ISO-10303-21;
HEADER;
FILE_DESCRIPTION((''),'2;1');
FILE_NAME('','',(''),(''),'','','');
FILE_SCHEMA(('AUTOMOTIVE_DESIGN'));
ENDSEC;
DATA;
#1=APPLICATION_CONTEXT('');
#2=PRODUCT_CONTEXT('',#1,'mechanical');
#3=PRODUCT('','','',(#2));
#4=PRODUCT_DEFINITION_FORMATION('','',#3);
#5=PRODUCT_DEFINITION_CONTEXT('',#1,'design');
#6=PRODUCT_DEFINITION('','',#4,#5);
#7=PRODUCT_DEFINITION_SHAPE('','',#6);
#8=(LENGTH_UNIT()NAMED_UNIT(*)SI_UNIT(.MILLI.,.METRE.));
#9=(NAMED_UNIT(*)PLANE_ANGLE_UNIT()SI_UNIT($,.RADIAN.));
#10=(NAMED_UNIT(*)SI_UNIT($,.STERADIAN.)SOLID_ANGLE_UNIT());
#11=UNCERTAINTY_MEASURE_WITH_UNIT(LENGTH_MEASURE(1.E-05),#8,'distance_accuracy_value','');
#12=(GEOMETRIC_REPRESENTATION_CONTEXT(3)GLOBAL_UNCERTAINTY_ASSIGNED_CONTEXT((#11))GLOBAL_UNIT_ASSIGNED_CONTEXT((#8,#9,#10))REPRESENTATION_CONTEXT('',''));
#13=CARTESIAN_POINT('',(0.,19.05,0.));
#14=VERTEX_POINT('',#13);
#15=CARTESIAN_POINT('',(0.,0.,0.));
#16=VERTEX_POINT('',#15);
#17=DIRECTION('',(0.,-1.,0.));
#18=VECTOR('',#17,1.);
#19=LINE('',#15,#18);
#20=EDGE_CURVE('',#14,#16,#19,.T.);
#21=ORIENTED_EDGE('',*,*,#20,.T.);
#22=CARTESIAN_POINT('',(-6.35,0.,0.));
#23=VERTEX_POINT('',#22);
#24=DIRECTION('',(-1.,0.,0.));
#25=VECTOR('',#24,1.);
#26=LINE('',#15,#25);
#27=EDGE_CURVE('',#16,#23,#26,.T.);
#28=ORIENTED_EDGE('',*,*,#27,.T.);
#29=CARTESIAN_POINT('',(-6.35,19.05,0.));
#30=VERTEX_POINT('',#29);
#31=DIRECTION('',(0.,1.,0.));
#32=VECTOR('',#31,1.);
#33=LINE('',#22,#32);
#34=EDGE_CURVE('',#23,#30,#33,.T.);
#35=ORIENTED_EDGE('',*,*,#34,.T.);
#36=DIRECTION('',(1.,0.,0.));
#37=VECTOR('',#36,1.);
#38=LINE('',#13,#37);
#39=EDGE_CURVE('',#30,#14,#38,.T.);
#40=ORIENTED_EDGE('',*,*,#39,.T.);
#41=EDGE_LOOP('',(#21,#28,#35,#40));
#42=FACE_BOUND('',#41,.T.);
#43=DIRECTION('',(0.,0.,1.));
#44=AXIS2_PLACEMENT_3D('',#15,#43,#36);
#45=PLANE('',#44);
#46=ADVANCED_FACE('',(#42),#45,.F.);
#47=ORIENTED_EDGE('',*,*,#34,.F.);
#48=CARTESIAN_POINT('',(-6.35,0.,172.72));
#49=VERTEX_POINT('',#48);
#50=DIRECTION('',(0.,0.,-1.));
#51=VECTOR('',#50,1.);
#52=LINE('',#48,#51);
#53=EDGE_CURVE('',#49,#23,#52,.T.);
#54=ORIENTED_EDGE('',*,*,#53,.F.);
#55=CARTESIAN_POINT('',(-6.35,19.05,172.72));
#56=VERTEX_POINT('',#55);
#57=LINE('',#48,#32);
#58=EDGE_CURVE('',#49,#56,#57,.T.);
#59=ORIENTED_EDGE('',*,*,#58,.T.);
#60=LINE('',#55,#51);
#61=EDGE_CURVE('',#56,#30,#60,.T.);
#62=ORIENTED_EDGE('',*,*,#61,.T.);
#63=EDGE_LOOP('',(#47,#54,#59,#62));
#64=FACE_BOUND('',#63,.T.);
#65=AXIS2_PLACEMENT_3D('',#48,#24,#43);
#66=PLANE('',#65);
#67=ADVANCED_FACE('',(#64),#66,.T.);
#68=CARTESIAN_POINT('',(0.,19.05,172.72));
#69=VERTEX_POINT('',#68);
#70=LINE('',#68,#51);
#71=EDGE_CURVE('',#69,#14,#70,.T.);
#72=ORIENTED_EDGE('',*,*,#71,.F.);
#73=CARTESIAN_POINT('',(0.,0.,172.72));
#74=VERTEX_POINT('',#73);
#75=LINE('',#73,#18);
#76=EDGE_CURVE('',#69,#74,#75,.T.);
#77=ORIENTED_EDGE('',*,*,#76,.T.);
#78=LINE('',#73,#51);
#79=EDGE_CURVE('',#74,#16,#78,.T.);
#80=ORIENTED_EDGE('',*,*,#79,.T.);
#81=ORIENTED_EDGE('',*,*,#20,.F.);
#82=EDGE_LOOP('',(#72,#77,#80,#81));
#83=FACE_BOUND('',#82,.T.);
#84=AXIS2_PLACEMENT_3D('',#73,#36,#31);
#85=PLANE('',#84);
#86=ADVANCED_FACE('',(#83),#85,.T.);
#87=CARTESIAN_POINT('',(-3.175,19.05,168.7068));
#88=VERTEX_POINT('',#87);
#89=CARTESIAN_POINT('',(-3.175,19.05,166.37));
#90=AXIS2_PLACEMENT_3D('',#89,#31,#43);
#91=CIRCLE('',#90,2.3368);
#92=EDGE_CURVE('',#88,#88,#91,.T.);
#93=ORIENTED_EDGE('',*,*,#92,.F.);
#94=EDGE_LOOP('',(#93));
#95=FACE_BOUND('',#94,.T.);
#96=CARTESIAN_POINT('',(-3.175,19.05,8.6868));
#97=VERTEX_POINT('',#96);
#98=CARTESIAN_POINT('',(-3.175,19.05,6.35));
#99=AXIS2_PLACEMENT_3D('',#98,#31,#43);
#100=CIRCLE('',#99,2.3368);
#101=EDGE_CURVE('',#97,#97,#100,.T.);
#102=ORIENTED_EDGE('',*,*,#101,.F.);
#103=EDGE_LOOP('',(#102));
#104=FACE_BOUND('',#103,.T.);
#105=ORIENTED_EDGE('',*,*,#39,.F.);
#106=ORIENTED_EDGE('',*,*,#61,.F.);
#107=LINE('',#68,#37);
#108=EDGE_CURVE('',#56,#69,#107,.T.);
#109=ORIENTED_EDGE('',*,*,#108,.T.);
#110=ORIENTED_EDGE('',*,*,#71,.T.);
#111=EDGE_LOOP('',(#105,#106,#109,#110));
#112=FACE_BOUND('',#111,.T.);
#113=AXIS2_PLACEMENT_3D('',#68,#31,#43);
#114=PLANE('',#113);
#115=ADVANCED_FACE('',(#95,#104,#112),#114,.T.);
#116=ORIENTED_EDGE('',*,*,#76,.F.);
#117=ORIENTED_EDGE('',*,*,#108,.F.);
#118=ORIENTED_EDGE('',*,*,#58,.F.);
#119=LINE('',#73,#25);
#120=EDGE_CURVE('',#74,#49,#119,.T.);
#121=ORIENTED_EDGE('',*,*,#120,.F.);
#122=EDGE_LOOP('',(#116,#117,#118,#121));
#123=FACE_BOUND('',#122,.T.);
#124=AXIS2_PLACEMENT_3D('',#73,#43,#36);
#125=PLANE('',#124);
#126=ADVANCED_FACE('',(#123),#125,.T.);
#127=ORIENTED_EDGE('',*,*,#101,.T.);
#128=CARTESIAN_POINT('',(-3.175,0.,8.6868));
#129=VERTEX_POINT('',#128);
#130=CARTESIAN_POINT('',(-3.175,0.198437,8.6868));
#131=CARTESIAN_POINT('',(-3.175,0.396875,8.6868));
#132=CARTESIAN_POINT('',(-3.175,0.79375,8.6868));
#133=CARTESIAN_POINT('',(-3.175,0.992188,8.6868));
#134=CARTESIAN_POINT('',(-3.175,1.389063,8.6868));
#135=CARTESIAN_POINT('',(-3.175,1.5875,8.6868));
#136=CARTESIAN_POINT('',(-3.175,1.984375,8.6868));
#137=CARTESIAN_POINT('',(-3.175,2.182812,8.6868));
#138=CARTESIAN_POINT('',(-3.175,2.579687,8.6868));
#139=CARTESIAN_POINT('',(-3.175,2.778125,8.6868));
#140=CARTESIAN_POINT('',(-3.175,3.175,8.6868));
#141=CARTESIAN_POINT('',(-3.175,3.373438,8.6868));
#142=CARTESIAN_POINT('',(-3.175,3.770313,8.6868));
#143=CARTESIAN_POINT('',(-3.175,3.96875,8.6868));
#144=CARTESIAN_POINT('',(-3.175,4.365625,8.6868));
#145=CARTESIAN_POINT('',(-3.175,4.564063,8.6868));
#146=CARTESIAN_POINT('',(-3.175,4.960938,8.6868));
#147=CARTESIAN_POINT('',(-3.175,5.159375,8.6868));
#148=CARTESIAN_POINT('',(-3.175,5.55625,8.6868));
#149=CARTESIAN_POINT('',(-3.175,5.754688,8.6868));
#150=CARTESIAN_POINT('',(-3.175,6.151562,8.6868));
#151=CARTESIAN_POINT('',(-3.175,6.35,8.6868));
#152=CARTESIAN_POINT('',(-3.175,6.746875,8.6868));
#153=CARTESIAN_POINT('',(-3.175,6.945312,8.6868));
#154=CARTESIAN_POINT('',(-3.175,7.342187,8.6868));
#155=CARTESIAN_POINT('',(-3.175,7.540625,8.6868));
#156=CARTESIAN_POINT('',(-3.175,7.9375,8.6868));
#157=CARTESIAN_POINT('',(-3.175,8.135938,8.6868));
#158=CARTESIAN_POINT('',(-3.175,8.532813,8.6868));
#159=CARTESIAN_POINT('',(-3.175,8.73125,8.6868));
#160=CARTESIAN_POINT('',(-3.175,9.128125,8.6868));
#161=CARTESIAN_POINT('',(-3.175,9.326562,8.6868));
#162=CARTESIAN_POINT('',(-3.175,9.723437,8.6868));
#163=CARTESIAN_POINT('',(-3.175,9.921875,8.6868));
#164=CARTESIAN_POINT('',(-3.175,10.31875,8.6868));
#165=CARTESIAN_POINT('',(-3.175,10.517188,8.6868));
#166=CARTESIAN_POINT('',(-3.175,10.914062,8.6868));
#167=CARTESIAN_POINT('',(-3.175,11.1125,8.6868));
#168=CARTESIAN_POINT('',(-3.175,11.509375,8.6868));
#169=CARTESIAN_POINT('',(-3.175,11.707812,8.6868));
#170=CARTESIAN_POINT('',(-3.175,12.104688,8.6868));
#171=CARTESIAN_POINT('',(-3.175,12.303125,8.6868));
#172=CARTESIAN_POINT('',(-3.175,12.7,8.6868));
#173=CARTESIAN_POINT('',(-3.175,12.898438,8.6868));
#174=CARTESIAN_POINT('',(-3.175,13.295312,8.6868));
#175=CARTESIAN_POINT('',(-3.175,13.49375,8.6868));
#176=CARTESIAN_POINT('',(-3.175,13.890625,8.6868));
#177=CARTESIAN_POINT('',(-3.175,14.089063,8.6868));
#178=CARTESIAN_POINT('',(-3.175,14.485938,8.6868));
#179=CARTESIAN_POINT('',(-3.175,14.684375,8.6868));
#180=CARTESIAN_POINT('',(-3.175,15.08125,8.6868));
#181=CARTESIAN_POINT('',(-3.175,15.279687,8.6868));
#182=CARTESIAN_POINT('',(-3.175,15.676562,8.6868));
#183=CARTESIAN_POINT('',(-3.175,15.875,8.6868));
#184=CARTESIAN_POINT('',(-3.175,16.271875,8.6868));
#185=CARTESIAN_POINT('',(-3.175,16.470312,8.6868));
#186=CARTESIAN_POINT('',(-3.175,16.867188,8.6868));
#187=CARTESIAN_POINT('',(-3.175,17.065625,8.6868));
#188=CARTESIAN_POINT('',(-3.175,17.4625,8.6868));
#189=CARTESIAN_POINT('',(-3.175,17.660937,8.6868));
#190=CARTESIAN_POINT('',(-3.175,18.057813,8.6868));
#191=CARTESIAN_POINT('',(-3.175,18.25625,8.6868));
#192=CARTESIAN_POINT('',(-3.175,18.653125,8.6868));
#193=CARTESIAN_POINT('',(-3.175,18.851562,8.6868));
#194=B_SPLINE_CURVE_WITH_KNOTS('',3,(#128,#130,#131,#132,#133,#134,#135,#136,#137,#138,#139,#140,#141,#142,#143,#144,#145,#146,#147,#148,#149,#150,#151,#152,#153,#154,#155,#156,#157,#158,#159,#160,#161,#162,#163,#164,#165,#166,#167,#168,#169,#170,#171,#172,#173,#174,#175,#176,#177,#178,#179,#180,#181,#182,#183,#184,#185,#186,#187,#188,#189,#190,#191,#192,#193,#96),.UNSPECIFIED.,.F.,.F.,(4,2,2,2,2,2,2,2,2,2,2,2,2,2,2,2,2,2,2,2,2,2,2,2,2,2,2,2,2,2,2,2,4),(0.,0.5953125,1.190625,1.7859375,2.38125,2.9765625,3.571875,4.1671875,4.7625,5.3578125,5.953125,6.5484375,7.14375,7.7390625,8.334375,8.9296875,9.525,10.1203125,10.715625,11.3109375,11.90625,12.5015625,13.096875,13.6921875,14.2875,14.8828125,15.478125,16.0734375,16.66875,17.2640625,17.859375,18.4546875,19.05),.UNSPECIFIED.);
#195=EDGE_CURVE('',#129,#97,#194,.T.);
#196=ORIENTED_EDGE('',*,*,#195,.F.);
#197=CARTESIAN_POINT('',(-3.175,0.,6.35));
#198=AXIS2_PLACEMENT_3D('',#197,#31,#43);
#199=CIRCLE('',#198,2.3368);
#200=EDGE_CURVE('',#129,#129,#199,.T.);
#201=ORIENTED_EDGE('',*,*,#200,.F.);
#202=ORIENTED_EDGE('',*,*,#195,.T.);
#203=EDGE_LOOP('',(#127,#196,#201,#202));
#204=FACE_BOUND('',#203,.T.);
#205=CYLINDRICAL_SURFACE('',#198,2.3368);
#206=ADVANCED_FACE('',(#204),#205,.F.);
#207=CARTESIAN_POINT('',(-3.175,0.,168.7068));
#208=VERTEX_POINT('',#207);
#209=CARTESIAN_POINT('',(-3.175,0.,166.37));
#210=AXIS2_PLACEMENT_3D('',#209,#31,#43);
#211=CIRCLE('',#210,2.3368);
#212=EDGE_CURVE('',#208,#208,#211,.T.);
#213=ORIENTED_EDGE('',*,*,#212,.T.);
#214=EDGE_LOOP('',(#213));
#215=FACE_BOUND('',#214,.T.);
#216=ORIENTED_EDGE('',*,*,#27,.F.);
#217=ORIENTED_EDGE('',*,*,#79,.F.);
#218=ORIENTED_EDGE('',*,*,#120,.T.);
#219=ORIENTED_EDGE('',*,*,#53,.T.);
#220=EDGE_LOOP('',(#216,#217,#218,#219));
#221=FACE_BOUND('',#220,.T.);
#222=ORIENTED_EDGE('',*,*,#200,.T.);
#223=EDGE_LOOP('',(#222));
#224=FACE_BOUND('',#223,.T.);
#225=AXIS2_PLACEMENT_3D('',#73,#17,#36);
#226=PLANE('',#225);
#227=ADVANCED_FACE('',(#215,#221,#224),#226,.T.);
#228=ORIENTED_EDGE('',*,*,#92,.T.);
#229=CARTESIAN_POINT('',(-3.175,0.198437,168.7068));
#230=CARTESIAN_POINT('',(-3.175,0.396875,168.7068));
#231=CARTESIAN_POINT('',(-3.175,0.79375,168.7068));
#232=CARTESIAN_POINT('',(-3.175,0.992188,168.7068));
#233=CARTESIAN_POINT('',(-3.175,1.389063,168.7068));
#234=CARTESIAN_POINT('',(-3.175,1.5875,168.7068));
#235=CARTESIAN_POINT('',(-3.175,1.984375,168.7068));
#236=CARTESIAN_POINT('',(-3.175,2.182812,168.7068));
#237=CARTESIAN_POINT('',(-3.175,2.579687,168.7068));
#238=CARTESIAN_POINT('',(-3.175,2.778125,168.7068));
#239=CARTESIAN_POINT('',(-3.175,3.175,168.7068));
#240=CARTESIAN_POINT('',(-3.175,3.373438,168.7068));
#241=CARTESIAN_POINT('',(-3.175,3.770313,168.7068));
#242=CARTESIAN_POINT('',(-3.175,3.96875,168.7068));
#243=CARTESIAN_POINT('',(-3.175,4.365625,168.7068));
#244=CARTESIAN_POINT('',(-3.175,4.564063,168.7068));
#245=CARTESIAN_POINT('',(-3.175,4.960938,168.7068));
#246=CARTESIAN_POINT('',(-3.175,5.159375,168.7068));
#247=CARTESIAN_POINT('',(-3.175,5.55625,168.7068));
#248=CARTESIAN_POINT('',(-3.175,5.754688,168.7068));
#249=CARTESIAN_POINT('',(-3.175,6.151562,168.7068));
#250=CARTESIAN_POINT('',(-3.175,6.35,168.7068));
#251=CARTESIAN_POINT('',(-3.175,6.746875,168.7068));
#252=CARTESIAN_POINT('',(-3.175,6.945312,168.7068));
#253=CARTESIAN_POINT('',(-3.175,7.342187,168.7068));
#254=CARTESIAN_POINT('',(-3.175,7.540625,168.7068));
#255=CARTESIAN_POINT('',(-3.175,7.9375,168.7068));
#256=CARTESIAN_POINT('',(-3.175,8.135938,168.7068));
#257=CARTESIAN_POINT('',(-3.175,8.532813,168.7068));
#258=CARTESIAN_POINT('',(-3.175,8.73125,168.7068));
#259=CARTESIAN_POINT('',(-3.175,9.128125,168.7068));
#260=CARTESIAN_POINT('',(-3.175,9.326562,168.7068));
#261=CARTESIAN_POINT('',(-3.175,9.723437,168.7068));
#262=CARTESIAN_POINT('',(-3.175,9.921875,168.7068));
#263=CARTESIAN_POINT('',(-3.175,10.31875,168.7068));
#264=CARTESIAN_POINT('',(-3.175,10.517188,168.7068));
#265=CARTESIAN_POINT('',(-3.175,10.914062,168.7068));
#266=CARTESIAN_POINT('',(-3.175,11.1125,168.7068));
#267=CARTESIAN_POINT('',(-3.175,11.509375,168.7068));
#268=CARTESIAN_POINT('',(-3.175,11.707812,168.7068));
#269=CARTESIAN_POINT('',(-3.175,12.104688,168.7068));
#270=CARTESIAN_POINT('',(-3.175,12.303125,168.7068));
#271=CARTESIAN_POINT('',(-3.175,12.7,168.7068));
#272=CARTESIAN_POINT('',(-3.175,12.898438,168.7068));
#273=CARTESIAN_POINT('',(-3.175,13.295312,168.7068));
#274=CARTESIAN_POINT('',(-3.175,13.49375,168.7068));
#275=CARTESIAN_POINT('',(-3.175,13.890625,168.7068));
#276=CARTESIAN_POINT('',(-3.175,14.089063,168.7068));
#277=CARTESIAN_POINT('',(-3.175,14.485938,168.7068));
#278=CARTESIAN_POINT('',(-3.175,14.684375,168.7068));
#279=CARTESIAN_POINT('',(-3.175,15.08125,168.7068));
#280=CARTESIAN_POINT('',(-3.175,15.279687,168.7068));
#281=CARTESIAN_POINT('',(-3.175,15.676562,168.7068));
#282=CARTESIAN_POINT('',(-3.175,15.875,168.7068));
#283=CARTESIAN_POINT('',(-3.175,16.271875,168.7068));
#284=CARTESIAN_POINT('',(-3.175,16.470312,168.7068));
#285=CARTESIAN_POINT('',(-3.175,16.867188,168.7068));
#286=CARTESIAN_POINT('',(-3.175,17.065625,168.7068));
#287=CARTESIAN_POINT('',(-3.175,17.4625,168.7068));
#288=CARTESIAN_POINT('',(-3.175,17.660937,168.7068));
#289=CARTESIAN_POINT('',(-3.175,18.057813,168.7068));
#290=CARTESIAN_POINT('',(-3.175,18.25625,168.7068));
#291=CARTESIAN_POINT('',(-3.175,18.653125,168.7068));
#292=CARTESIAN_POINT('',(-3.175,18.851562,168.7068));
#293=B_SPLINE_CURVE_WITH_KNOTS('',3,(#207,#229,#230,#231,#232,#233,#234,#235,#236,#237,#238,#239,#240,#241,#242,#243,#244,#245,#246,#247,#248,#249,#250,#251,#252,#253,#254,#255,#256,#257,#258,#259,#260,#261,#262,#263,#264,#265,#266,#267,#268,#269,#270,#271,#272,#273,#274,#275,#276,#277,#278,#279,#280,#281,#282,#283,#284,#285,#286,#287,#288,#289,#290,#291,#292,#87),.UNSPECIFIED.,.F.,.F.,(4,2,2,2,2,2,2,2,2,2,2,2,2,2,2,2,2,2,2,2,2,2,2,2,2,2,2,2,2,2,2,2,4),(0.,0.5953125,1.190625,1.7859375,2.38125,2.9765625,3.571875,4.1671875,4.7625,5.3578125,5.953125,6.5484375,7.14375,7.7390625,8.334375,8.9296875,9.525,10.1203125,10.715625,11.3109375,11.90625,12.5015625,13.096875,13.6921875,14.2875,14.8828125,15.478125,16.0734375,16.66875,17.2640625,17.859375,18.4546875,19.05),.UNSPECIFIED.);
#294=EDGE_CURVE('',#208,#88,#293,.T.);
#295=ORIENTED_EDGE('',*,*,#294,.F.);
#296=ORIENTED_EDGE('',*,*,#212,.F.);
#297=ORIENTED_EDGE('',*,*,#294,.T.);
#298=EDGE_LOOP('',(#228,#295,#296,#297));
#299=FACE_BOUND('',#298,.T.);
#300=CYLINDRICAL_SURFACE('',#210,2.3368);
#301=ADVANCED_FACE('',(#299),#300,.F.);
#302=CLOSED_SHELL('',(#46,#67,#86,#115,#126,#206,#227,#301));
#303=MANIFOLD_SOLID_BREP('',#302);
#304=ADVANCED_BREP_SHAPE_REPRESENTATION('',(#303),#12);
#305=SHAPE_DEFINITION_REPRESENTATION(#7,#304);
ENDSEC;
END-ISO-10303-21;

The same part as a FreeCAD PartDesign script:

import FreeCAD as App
import Part
import Sketcher
Q = App.Units.Quantity


def add_polygon(sketch, points):
    """Adds a closed chain of lines whose ends are joined by coincident constraints."""
    first, n = sketch.GeometryCount, len(points)
    for a, b in zip(points, points[1:] + points[:1]):
        sketch.addGeometry(Part.LineSegment(App.Vector(*a, 0), App.Vector(*b, 0)), False)
    for i in range(n):
        sketch.addConstraint(Sketcher.Constraint("Coincident", first + i, 2, first + (i + 1) % n, 1))

doc = App.newDocument("Part")
body = doc.addObject("PartDesign::Body", "Body")

sketch1 = doc.addObject("Sketcher::SketchObject", "Sketch")
body.addObject(sketch1)
sketch1.AttachmentSupport = (doc.XY_Plane, [""])
sketch1.MapMode = "FlatFace"
add_polygon(sketch1, [(-6.35, 19.05), (-6.35, 0), (0, 0), (0, 19.05)])
sketch1.addConstraint(Sketcher.Constraint("Vertical", 0))
sketch1.addConstraint(Sketcher.Constraint("Horizontal", 1))
sketch1.addConstraint(Sketcher.Constraint("Vertical", 2))
sketch1.addConstraint(Sketcher.Constraint("Horizontal", 3))
sketch1.addConstraint(Sketcher.Constraint("Coincident", 1, 2, -1, 1))
sketch1.addConstraint(Sketcher.Constraint("DistanceX", 1, 1, 1, 2, Q("0.25 in")))
sketch1.addConstraint(Sketcher.Constraint("DistanceY", 0, 2, 0, 1, Q("0.75 in")))
pad1 = doc.addObject("PartDesign::Pad", "Pad")
body.addObject(pad1)
pad1.Profile = sketch1
pad1.Length = Q("6.8 in")

sketch2 = doc.addObject("Sketcher::SketchObject", "Sketch001")
body.addObject(sketch2)
sketch2.AttachmentSupport = (doc.XZ_Plane, [""])
sketch2.MapMode = "FlatFace"
sketch2.AttachmentOffset = App.Placement(App.Vector(0, 0, -0.75 * 25.4), App.Rotation())
sketch2.addGeometry(Part.Circle(App.Vector(-3.175, 166.37, 0), App.Vector(0, 0, 1), 2.3368), False)
sketch2.addGeometry(Part.Circle(App.Vector(-3.175, 6.35, 0), App.Vector(0, 0, 1), 2.3368), False)
sketch2.addConstraint(Sketcher.Constraint("Equal", 0, 1))
sketch2.addConstraint(Sketcher.Constraint("Vertical", 0, 3, 1, 3))
sketch2.addConstraint(Sketcher.Constraint("Diameter", 0, Q("0.184 in")))
sketch2.addConstraint(Sketcher.Constraint("DistanceY", 1, 3, 0, 3, Q("6.3 in")))
sketch2.addConstraint(Sketcher.Constraint("DistanceY", -1, 1, 0, 3, Q("6.55 in")))
sketch2.addConstraint(Sketcher.Constraint("DistanceX", 0, 3, -1, 1, Q("0.125 in")))
pocket1 = doc.addObject("PartDesign::Pocket", "Pocket")
body.addObject(pocket1)
pocket1.Profile = sketch2
pocket1.Type = "ThroughAll"
pocket1.Reversed = True

doc.recompute()
